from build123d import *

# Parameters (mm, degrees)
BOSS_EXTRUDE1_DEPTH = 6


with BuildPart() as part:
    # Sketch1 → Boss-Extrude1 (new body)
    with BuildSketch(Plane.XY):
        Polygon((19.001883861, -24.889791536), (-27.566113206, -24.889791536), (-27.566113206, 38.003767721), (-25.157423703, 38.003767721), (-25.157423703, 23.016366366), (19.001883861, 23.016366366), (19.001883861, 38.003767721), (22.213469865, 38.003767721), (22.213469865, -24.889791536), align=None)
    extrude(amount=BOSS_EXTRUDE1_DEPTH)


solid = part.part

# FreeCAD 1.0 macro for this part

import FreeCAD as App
import Part
import Sketcher

V = App.Vector
Q = App.Units.Quantity

doc = App.newDocument("Part")
params = doc.addObject("Spreadsheet::Sheet", "Params")
for row, (alias, value) in enumerate([
    ("pad1_length", "6 mm"),
], start=1):
    params.set(f"A{row}", alias)
    params.set(f"B{row}", "=" + value)
    params.setAlias(f"B{row}", alias)

body = doc.addObject("PartDesign::Body", "Body")

sketch1 = body.newObject("Sketcher::SketchObject", "Sketch")
sketch1.AttachmentSupport = (doc.getObject("XY_Plane"), [""])
sketch1.MapMode = "FlatFace"
sketch1.addGeometry([
    Part.LineSegment(V(-27.6, -24.9, 0), V(22.2, -24.9, 0)),
    Part.LineSegment(V(22.2, -24.9, 0), V(22.2, 38, 0)),
    Part.LineSegment(V(22.2, 38, 0), V(19, 38, 0)),
    Part.LineSegment(V(19, 38, 0), V(19, 23, 0)),
    Part.LineSegment(V(19, 23, 0), V(-25.2, 23, 0)),
    Part.LineSegment(V(-25.2, 23, 0), V(-25.2, 38, 0)),
    Part.LineSegment(V(-25.2, 38, 0), V(-27.6, 38, 0)),
    Part.LineSegment(V(-27.6, 38, 0), V(-27.6, -24.9, 0)),
], False)
sketch1.addConstraint([
    Sketcher.Constraint("Coincident", 0, 2, 1, 1),
    Sketcher.Constraint("Coincident", 1, 2, 2, 1),
    Sketcher.Constraint("Coincident", 2, 2, 3, 1),
    Sketcher.Constraint("Coincident", 3, 2, 4, 1),
    Sketcher.Constraint("Coincident", 4, 2, 5, 1),
    Sketcher.Constraint("Coincident", 5, 2, 6, 1),
    Sketcher.Constraint("Coincident", 6, 2, 7, 1),
    Sketcher.Constraint("Coincident", 7, 2, 0, 1),
    Sketcher.Constraint("Horizontal", 0),
    Sketcher.Constraint("Vertical", 1),
    Sketcher.Constraint("Horizontal", 2),
    Sketcher.Constraint("Vertical", 3),
    Sketcher.Constraint("Horizontal", 4),
    Sketcher.Constraint("Vertical", 5),
    Sketcher.Constraint("Horizontal", 6),
    Sketcher.Constraint("Vertical", 7),
    Sketcher.Constraint("Horizontal", 2, 2, 5, 2),
    Sketcher.Constraint("DistanceY", 3, 2, 3, 1, Q("14.987401 mm")),
    Sketcher.Constraint("DistanceX", 6, 2, 6, 1, Q("2.40869 mm")),
    Sketcher.Constraint("DistanceY", 1, 1, 1, 2, Q("62.893559 mm")),
    Sketcher.Constraint("DistanceX", 0, 1, 0, 2, Q("49.779583 mm")),
    Sketcher.Constraint("DistanceX", 2, 2, 2, 1, Q("3.211586 mm")),
    Sketcher.Constraint("DistanceX", -1, 1, 0, 2, Q("22.21347 mm")),
    Sketcher.Constraint("DistanceY", 0, 2, -1, 1, Q("24.889792 mm")),
])
pad1 = body.newObject("PartDesign::Pad", "Pad")
pad1.Profile = sketch1
pad1.setExpression("Length", "Params.pad1_length")

doc.recompute()
